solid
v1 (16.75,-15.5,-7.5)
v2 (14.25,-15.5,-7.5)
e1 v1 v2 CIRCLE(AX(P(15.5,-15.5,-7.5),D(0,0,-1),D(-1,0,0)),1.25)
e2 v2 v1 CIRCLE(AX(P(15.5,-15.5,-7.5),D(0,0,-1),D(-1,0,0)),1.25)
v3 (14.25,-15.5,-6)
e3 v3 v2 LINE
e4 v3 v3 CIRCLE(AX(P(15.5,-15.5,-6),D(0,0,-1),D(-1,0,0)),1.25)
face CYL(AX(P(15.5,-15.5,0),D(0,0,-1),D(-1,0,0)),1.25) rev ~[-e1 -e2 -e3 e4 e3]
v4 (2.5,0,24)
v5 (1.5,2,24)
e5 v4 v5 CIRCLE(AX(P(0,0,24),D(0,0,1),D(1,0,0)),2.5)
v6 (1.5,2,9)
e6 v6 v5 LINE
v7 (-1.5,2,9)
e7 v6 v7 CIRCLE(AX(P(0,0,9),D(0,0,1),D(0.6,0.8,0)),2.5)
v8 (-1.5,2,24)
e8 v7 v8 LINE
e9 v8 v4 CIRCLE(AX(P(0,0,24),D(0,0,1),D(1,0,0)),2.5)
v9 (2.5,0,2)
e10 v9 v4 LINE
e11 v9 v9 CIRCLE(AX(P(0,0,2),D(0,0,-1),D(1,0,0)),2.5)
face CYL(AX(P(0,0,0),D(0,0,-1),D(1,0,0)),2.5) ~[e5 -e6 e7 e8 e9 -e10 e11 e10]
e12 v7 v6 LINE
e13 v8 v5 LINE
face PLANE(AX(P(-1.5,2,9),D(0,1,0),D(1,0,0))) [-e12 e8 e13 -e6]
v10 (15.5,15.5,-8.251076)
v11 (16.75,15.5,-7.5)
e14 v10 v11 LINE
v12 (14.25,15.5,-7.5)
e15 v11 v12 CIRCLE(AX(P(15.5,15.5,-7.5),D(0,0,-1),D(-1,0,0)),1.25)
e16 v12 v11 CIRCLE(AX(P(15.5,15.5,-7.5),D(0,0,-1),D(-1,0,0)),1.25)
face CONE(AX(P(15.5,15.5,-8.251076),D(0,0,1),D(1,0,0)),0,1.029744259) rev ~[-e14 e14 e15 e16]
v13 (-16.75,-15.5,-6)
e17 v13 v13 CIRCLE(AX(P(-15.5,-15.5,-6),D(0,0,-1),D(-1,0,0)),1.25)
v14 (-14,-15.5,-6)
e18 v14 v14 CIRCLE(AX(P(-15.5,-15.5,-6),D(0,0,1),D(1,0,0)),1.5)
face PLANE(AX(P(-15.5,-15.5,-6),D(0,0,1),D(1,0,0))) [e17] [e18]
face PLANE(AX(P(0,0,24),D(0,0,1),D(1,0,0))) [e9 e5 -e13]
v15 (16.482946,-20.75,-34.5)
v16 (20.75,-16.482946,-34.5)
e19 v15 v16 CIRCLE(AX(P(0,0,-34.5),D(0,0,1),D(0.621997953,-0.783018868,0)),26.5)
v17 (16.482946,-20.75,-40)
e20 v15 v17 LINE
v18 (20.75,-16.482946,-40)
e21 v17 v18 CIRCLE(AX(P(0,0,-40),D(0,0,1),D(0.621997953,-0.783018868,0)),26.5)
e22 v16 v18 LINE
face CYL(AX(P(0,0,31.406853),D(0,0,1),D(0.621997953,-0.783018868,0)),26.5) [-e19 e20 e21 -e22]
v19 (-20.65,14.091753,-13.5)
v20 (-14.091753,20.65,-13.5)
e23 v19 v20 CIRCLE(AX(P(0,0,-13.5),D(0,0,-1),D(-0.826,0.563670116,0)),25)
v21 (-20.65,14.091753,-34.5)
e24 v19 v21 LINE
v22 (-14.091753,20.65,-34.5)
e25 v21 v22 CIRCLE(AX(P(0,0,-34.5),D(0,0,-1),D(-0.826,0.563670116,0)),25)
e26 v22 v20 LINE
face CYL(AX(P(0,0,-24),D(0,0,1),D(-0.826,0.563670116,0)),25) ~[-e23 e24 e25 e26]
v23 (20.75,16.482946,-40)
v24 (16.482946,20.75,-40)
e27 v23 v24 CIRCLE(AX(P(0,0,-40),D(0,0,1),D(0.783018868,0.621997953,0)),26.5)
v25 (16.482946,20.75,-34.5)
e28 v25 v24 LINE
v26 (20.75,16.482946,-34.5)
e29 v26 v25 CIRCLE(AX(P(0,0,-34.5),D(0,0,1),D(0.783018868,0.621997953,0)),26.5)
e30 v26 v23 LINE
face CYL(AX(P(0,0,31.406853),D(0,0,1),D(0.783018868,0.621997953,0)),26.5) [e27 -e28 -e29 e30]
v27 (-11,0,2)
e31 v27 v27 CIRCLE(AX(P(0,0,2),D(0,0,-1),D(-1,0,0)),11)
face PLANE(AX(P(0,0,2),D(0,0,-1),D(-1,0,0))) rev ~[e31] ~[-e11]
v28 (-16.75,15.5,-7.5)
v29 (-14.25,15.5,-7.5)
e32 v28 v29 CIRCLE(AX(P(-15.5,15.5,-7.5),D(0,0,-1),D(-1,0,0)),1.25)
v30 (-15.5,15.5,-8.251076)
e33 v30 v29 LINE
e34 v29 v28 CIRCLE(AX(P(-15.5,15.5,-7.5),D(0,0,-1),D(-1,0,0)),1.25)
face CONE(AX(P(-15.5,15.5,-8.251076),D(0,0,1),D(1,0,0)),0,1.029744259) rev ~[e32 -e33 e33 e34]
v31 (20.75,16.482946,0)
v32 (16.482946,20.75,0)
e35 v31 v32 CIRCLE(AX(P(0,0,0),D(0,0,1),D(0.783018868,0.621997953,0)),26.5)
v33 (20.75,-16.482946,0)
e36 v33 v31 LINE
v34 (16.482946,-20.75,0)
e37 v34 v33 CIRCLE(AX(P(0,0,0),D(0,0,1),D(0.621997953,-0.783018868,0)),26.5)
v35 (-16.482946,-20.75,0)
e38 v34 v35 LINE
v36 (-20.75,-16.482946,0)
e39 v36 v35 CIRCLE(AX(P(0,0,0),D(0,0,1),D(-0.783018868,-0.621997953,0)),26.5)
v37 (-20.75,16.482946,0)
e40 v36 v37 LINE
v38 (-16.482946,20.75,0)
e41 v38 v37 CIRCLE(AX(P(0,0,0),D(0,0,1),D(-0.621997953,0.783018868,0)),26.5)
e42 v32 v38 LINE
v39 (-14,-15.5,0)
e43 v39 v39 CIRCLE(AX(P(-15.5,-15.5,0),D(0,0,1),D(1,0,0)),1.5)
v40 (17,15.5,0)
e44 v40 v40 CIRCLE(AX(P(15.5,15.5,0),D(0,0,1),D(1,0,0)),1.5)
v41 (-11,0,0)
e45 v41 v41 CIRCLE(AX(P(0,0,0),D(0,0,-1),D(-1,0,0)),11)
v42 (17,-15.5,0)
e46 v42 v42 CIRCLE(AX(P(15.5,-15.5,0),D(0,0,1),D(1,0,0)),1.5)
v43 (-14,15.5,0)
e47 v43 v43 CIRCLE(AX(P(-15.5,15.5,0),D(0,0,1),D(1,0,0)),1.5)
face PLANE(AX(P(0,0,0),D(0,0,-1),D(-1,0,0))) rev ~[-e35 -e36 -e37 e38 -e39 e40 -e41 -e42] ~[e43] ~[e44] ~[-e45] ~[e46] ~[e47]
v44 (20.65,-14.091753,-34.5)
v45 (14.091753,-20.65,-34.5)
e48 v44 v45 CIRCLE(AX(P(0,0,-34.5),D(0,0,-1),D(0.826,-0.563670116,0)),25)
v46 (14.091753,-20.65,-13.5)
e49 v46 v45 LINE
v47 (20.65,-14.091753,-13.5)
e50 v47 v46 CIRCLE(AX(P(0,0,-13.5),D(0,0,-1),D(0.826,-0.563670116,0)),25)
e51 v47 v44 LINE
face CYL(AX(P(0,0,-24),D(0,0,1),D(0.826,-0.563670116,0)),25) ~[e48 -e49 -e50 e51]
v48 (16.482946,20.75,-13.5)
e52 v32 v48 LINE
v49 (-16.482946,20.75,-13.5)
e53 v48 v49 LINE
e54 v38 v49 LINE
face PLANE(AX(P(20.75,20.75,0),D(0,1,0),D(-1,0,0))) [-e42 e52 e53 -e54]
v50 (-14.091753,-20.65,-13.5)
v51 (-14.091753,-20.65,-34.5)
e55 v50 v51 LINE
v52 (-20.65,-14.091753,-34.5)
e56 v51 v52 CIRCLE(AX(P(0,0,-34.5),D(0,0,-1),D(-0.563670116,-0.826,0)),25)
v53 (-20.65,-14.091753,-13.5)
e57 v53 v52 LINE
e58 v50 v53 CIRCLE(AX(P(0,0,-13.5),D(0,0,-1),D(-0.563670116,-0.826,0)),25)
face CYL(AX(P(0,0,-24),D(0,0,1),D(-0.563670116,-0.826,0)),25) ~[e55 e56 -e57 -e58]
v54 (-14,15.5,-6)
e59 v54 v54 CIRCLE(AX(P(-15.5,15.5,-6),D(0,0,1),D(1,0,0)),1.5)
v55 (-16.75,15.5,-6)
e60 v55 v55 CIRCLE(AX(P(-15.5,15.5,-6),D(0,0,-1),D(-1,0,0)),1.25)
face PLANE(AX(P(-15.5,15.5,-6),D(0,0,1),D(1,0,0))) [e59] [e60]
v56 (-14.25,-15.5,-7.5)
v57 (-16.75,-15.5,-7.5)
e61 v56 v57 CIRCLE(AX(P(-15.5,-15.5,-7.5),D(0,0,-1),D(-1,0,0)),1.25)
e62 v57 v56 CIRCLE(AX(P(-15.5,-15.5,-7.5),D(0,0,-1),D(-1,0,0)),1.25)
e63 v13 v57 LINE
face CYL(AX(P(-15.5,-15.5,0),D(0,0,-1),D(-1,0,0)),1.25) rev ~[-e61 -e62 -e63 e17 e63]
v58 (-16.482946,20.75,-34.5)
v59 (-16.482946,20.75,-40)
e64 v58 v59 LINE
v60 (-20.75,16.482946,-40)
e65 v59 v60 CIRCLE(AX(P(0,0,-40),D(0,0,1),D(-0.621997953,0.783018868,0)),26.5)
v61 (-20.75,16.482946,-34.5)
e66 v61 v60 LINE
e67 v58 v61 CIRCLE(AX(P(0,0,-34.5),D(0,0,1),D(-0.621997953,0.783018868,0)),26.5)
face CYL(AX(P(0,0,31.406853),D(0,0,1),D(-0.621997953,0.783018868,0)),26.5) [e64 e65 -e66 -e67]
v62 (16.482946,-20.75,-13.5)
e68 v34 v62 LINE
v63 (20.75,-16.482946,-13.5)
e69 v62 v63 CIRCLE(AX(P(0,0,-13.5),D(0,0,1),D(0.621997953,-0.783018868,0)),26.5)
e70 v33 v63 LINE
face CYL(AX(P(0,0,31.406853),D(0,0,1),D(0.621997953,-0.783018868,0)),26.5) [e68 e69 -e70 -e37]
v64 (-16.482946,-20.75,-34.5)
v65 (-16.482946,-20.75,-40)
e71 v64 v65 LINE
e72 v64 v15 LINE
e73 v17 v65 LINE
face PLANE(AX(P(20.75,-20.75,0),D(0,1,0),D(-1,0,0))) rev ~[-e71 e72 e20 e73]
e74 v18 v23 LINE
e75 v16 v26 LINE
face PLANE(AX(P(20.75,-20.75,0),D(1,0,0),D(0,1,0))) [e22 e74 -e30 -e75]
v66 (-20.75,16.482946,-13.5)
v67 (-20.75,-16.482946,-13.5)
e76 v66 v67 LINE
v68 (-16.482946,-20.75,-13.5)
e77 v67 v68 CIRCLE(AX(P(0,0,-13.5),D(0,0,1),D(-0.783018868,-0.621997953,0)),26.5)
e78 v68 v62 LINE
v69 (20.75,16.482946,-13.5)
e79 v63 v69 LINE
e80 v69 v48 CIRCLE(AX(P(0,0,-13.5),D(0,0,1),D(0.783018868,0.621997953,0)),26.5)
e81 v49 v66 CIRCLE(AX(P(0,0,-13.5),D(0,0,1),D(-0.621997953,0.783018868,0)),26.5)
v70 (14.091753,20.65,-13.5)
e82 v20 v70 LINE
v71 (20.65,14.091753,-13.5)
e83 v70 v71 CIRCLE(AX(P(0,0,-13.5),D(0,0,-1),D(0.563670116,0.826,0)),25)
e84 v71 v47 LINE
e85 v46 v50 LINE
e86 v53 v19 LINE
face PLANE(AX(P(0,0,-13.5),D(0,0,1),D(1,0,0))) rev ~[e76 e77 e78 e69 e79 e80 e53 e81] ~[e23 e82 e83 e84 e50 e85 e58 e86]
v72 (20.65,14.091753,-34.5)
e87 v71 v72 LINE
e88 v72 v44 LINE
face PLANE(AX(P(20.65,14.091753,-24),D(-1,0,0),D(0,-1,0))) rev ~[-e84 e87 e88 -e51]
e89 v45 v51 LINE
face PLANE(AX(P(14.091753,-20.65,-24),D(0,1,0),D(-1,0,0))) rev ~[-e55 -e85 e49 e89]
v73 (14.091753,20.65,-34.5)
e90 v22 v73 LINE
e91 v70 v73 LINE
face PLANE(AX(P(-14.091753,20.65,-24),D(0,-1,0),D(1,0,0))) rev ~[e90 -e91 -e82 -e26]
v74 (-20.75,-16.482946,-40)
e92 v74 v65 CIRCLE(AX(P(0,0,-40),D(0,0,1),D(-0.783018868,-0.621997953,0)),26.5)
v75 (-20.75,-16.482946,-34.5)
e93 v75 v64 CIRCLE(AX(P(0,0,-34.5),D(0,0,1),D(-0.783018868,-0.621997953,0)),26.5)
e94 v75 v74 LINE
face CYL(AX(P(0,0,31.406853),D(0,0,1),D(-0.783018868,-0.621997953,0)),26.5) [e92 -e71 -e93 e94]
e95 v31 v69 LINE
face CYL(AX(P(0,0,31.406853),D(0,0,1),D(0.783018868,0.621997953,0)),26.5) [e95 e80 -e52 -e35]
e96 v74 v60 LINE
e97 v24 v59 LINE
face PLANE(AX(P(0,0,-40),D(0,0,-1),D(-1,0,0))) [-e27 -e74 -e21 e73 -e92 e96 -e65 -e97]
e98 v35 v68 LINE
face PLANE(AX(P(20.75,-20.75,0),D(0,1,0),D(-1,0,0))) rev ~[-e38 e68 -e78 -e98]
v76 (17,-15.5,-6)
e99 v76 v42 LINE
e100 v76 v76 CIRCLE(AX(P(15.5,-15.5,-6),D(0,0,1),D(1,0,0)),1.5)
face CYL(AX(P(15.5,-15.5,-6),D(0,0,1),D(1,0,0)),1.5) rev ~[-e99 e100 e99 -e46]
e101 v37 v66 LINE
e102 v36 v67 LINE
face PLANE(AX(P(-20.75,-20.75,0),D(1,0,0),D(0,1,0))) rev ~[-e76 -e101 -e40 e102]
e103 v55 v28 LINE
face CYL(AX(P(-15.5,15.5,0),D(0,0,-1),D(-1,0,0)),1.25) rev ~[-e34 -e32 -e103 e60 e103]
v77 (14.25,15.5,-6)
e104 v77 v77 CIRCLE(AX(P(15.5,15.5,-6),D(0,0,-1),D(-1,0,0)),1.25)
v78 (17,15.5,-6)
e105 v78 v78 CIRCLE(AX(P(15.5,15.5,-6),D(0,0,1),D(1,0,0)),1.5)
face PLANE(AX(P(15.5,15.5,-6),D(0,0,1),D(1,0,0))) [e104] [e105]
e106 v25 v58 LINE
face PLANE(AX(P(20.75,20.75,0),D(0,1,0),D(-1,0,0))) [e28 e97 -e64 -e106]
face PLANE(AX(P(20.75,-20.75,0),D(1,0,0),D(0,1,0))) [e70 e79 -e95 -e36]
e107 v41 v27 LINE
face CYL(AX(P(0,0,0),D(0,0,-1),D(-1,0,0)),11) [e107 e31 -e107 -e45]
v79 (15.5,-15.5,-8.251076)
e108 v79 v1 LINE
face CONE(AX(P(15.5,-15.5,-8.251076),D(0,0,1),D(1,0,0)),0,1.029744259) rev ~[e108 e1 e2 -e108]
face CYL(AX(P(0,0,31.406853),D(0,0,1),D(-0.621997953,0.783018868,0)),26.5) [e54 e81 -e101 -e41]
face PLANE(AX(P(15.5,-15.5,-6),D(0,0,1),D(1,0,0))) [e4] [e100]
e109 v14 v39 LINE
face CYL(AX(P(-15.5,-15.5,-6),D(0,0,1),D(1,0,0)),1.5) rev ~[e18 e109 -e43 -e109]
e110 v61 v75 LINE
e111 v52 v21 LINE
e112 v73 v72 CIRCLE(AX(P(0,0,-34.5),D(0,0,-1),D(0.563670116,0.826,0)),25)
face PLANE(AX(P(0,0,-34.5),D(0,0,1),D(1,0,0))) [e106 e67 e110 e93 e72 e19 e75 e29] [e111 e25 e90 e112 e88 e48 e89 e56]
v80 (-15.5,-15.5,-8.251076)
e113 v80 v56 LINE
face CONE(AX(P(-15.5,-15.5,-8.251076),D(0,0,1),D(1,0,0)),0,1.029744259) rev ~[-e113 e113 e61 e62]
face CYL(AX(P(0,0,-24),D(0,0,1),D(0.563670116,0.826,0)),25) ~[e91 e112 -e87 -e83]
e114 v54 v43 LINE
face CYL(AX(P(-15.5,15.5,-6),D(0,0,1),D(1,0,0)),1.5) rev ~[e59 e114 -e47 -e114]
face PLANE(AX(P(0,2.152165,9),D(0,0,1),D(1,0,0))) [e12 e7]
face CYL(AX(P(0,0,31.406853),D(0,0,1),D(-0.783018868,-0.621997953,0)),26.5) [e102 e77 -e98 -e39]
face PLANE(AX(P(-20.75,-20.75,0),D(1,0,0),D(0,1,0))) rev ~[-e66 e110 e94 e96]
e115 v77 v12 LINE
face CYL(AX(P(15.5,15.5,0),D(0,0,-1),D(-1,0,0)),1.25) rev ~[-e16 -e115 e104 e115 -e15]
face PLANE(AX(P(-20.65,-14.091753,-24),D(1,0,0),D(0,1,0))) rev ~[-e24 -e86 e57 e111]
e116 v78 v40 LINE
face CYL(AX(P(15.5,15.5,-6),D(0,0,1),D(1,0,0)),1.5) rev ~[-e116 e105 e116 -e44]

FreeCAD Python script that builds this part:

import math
import FreeCAD as App
import Part
import Sketcher

V = App.Vector


def add_polygon(sketch, points):
    """Adds a closed chain of lines whose ends are joined by coincident constraints."""
    first, n = sketch.GeometryCount, len(points)
    for a, b in zip(points, points[1:] + points[:1]):
        sketch.addGeometry(Part.LineSegment(App.Vector(*a, 0), App.Vector(*b, 0)), False)
    for i in range(n):
        sketch.addConstraint(Sketcher.Constraint("Coincident", first + i, 2, first + (i + 1) % n, 1))

doc = App.newDocument("Part")
body = doc.addObject("PartDesign::Body", "Body")

# Sketch on XY plane
sketch1 = body.newObject("Sketcher::SketchObject", "Sketch")
sketch1.AttachmentSupport = (doc.getObject("XY_Plane"), [""])
sketch1.MapMode = "FlatFace"
sketch1.addGeometry(Part.Circle(V(0, 0, 0), V(0, 0, 1), 2.5), False)
sketch1.addConstraint([
    Sketcher.Constraint("Coincident", 0, 3, -1, 1),
    Sketcher.Constraint("Diameter", 0, 5.0),
])
pad1 = body.newObject("PartDesign::Pad", "Pad")
pad1.Profile = sketch1
pad1.Length = 24

# Sketch on XY plane
sketch2 = body.newObject("Sketcher::SketchObject", "Sketch001")
sketch2.AttachmentSupport = (doc.getObject("XY_Plane"), [""])
sketch2.MapMode = "FlatFace"
sketch2.addGeometry(Part.Circle(V(0, 0, 0), V(0, 0, 1), 11), False)
sketch2.addConstraint([
    Sketcher.Constraint("Coincident", 0, 3, -1, 1),
    Sketcher.Constraint("Diameter", 0, 22.0),
])
pad2 = body.newObject("PartDesign::Pad", "Pad001")
pad2.Profile = sketch2
pad2.Length = 2

# Sketch on XY plane
sketch3 = body.newObject("Sketcher::SketchObject", "Sketch002")
sketch3.AttachmentSupport = (doc.getObject("XY_Plane"), [""])
sketch3.MapMode = "FlatFace"
add_polygon(sketch3, [(20.75, 20.75), (20.75, -20.75), (-20.75, -20.75), (-20.75, 20.75)])  # lines 0-3
sketch3.addConstraint([
    Sketcher.Constraint("Vertical", 0),
    Sketcher.Constraint("Horizontal", 1),
    Sketcher.Constraint("Vertical", 2),
    Sketcher.Constraint("Horizontal", 3),
    Sketcher.Constraint("Symmetric", 0, 2, 2, 2, -1, 1),
    Sketcher.Constraint("Equal", 3, 0),
    Sketcher.Constraint("DistanceX", 1, 2, 1, 1, 41.5),
])
pad3 = body.newObject("PartDesign::Pad", "Pad002")
pad3.Profile = sketch3
pad3.Length = 40
pad3.Reversed = True

# Sketch on XY plane
sketch4 = body.newObject("Sketcher::SketchObject", "Sketch003")
sketch4.AttachmentSupport = (doc.getObject("XY_Plane"), [""])
sketch4.MapMode = "FlatFace"
sketch4.AttachmentOffset = App.Placement(V(0, 0, -40), App.Rotation())
sketch4.addGeometry([
    Part.LineSegment(V(20.75, -16.482946, 0), V(20.75, -20.75, 0)),  # 0
    Part.LineSegment(V(20.75, -20.75, 0), V(16.482946, -20.75, 0)),  # 1
    Part.ArcOfCircle(Part.Circle(V(0, 0, 0), V(0, 0, 1), 26.5), math.radians(-51.537817), math.radians(-38.462183)),  # 2
    Part.LineSegment(V(-16.482946, -20.75, 0), V(-20.75, -20.75, 0)),  # 3
    Part.LineSegment(V(-20.75, -20.75, 0), V(-20.75, -16.482946, 0)),  # 4
    Part.ArcOfCircle(Part.Circle(V(0, 0, 0), V(0, 0, 1), 26.5), math.radians(-141.537817), math.radians(-128.462183)),  # 5
    Part.LineSegment(V(-20.75, 16.482946, 0), V(-20.75, 20.75, 0)),  # 6
    Part.LineSegment(V(-20.75, 20.75, 0), V(-16.482946, 20.75, 0)),  # 7
    Part.ArcOfCircle(Part.Circle(V(0, 0, 0), V(0, 0, 1), 26.5), math.radians(128.462183), math.radians(141.537817)),  # 8
    Part.LineSegment(V(16.482946, 20.75, 0), V(20.75, 20.75, 0)),  # 9
    Part.LineSegment(V(20.75, 20.75, 0), V(20.75, 16.482946, 0)),  # 10
    Part.ArcOfCircle(Part.Circle(V(0, 0, 0), V(0, 0, 1), 26.5), math.radians(38.462183), math.radians(51.537817)),  # 11
], False)
sketch4.addConstraint([
    Sketcher.Constraint("Coincident", 0, 2, 1, 1),
    Sketcher.Constraint("Coincident", 1, 2, 2, 1),
    Sketcher.Constraint("Coincident", 2, 2, 0, 1),
    Sketcher.Constraint("Coincident", 3, 2, 4, 1),
    Sketcher.Constraint("Coincident", 4, 2, 5, 1),
    Sketcher.Constraint("Coincident", 5, 2, 3, 1),
    Sketcher.Constraint("Coincident", 6, 2, 7, 1),
    Sketcher.Constraint("Coincident", 7, 2, 8, 1),
    Sketcher.Constraint("Coincident", 8, 2, 6, 1),
    Sketcher.Constraint("Coincident", 9, 2, 10, 1),
    Sketcher.Constraint("Coincident", 10, 2, 11, 1),
    Sketcher.Constraint("Coincident", 11, 2, 9, 1),
    Sketcher.Constraint("Vertical", 0),
    Sketcher.Constraint("Horizontal", 1),
    Sketcher.Constraint("Horizontal", 3),
    Sketcher.Constraint("Vertical", 4),
    Sketcher.Constraint("Vertical", 6),
    Sketcher.Constraint("Horizontal", 7),
    Sketcher.Constraint("Horizontal", 9),
    Sketcher.Constraint("Vertical", 10),
    Sketcher.Constraint("Coincident", 2, 3, -1, 1),
    Sketcher.Constraint("Coincident", 5, 3, -1, 1),
    Sketcher.Constraint("Coincident", 8, 3, -1, 1),
    Sketcher.Constraint("Coincident", 11, 3, -1, 1),
    Sketcher.Constraint("Equal", 2, 5),
    Sketcher.Constraint("Equal", 5, 8),
    Sketcher.Constraint("Equal", 8, 11),
    Sketcher.Constraint("Symmetric", 0, 2, 6, 2, -1, 1),
    Sketcher.Constraint("Symmetric", 3, 2, 9, 2, -1, 1),
    Sketcher.Constraint("Symmetric", 0, 2, 3, 2, -2),
    Sketcher.Constraint("Equal", 9, 0),
    Sketcher.Constraint("Radius", 2, 26.5),
    Sketcher.Constraint("DistanceX", -1, 1, 0, 2, 20.75),
])
pocket1 = body.newObject("PartDesign::Pocket", "Pocket")
pocket1.Profile = sketch4
pocket1.Type = "ThroughAll"
pocket1.Midplane = True

# Sketch on XY plane
sketch5 = body.newObject("Sketcher::SketchObject", "Sketch004")
sketch5.AttachmentSupport = (doc.getObject("XY_Plane"), [""])
sketch5.MapMode = "FlatFace"
sketch5.addGeometry([
    Part.Circle(V(-15.5, 15.5, 0), V(0, 0, 1), 1.25),
    Part.Circle(V(-15.5, -15.5, 0), V(0, 0, 1), 1.25),
    Part.Circle(V(15.5, -15.5, 0), V(0, 0, 1), 1.25),
    Part.Circle(V(15.5, 15.5, 0), V(0, 0, 1), 1.25),
], False)
sketch5.addConstraint([
    Sketcher.Constraint("Equal", 0, 1),
    Sketcher.Constraint("Equal", 1, 2),
    Sketcher.Constraint("Equal", 2, 3),
    Sketcher.Constraint("Symmetric", 0, 3, 2, 3, -1, 1),
    Sketcher.Constraint("Symmetric", 1, 3, 3, 3, -1, 1),
    Sketcher.Constraint("Symmetric", 1, 3, 2, 3, -2),
    Sketcher.Constraint("Diameter", 0, 2.5),
    Sketcher.Constraint("DistanceY", 1, 3, 0, 3, 31.0),
    Sketcher.Constraint("DistanceX", 1, 3, 2, 3, 31.0),
])
doc.recompute()
hole = body.newObject("PartDesign::Hole", "Hole")
hole.Profile = sketch5
hole.ThreadType = "None"
hole.Diameter = 2.5
hole.DepthType = "Dimension"
hole.Depth = 7.5
hole.DrillPoint = "Angled"
hole.DrillPointAngle = 118
hole.HoleCutType = "Counterbore"
hole.HoleCutDiameter = 3
hole.HoleCutDepth = 6

# Sketch on XY plane
sketch6 = body.newObject("Sketcher::SketchObject", "Sketch005")
sketch6.AttachmentSupport = (doc.getObject("XY_Plane"), [""])
sketch6.MapMode = "FlatFace"
sketch6.AttachmentOffset = App.Placement(V(0, 0, 9), App.Rotation())
sketch6.addGeometry([
    Part.LineSegment(V(-1.5, 2, 0), V(1.5, 2, 0)),
    Part.ArcOfCircle(Part.Circle(V(0, 0, 0), V(0, 0, 1), 2.5), math.radians(53.130102), math.radians(126.869898)),
], False)
sketch6.addConstraint([
    Sketcher.Constraint("Coincident", 0, 1, 1, 2),
    Sketcher.Constraint("Coincident", 1, 1, 0, 2),
    Sketcher.Constraint("Horizontal", 0),
    Sketcher.Constraint("Coincident", 1, 3, -1, 1),
    Sketcher.Constraint("Radius", 1, 2.5),
    Sketcher.Constraint("DistanceX", 0, 1, 0, 2, 3.0),
])
pocket2 = body.newObject("PartDesign::Pocket", "Pocket001")
pocket2.Profile = sketch6
pocket2.Length = 15
pocket2.Reversed = True

# Sketch on XY plane
sketch7 = body.newObject("Sketcher::SketchObject", "Sketch006")
sketch7.AttachmentSupport = (doc.getObject("XY_Plane"), [""])
sketch7.MapMode = "FlatFace"
sketch7.AttachmentOffset = App.Placement(V(0, 0, -24), App.Rotation())
sketch7.addGeometry([
    Part.LineSegment(V(16.482946, 20.75, 0), V(-16.482946, 20.75, 0)),  # 0
    Part.ArcOfCircle(Part.Circle(V(0, 0, 0), V(0, 0, 1), 26.5), math.radians(128.462183), math.radians(141.537817)),  # 1
    Part.LineSegment(V(-20.75, 16.482946, 0), V(-20.75, -16.482946, 0)),  # 2
    Part.ArcOfCircle(Part.Circle(V(0, 0, 0), V(0, 0, 1), 26.5), math.radians(-141.537817), math.radians(-128.462183)),  # 3
    Part.LineSegment(V(-16.482946, -20.75, 0), V(16.482946, -20.75, 0)),  # 4
    Part.ArcOfCircle(Part.Circle(V(0, 0, 0), V(0, 0, 1), 26.5), math.radians(-51.537817), math.radians(-38.462183)),  # 5
    Part.LineSegment(V(20.75, -16.482946, 0), V(20.75, 16.482946, 0)),  # 6
    Part.ArcOfCircle(Part.Circle(V(0, 0, 0), V(0, 0, 1), 26.5), math.radians(38.462183), math.radians(51.537817)),  # 7
    Part.ArcOfCircle(Part.Circle(V(0, 0, 0), V(0, 0, 1), 25), math.radians(124.309993), math.radians(145.690007)),  # 8
    Part.LineSegment(V(-14.091753, 20.65, 0), V(14.091753, 20.65, 0)),  # 9
    Part.ArcOfCircle(Part.Circle(V(0, 0, 0), V(0, 0, 1), 25), math.radians(34.309993), math.radians(55.690007)),  # 10
    Part.LineSegment(V(20.65, 14.091753, 0), V(20.65, -14.091753, 0)),  # 11
    Part.ArcOfCircle(Part.Circle(V(0, 0, 0), V(0, 0, 1), 25), math.radians(-55.690007), math.radians(-34.309993)),  # 12
    Part.LineSegment(V(14.091753, -20.65, 0), V(-14.091753, -20.65, 0)),  # 13
    Part.ArcOfCircle(Part.Circle(V(0, 0, 0), V(0, 0, 1), 25), math.radians(-145.690007), math.radians(-124.309993)),  # 14
    Part.LineSegment(V(-20.65, -14.091753, 0), V(-20.65, 14.091753, 0)),  # 15
], False)
sketch7.addConstraint([
    Sketcher.Constraint("Coincident", 0, 2, 1, 1),
    Sketcher.Constraint("Coincident", 1, 2, 2, 1),
    Sketcher.Constraint("Coincident", 2, 2, 3, 1),
    Sketcher.Constraint("Coincident", 3, 2, 4, 1),
    Sketcher.Constraint("Coincident", 4, 2, 5, 1),
    Sketcher.Constraint("Coincident", 5, 2, 6, 1),
    Sketcher.Constraint("Coincident", 6, 2, 7, 1),
    Sketcher.Constraint("Coincident", 7, 2, 0, 1),
    Sketcher.Constraint("Coincident", 8, 1, 9, 1),
    Sketcher.Constraint("Coincident", 9, 2, 10, 2),
    Sketcher.Constraint("Coincident", 10, 1, 11, 1),
    Sketcher.Constraint("Coincident", 11, 2, 12, 2),
    Sketcher.Constraint("Coincident", 12, 1, 13, 1),
    Sketcher.Constraint("Coincident", 13, 2, 14, 2),
    Sketcher.Constraint("Coincident", 14, 1, 15, 1),
    Sketcher.Constraint("Coincident", 15, 2, 8, 2),
    Sketcher.Constraint("Horizontal", 0),
    Sketcher.Constraint("Vertical", 2),
    Sketcher.Constraint("Horizontal", 4),
    Sketcher.Constraint("Vertical", 6),
    Sketcher.Constraint("Horizontal", 9),
    Sketcher.Constraint("Vertical", 11),
    Sketcher.Constraint("Horizontal", 13),
    Sketcher.Constraint("Vertical", 15),
    Sketcher.Constraint("Coincident", 1, 3, -1, 1),
    Sketcher.Constraint("Coincident", 3, 3, -1, 1),
    Sketcher.Constraint("Coincident", 5, 3, -1, 1),
    Sketcher.Constraint("Coincident", 7, 3, -1, 1),
    Sketcher.Constraint("Coincident", 8, 3, -1, 1),
    Sketcher.Constraint("Coincident", 10, 3, -1, 1),
    Sketcher.Constraint("Coincident", 12, 3, -1, 1),
    Sketcher.Constraint("Coincident", 14, 3, -1, 1),
    Sketcher.Constraint("Equal", 1, 3),
    Sketcher.Constraint("Equal", 3, 5),
    Sketcher.Constraint("Equal", 5, 7),
    Sketcher.Constraint("Equal", 8, 10),
    Sketcher.Constraint("Equal", 10, 12),
    Sketcher.Constraint("Equal", 12, 14),
    Sketcher.Constraint("Horizontal", 2, 2, 5, 2),
    Sketcher.Constraint("Horizontal", 11, 2, 14, 1),
    Sketcher.Constraint("Vertical", 0, 2, 3, 2),
    Sketcher.Constraint("Vertical", 9, 2, 12, 1),
    Sketcher.Constraint("Equal", 4, 2),
    Sketcher.Constraint("Equal", 13, 11),
    Sketcher.Constraint("Radius", 8, 25.0),
    Sketcher.Constraint("Radius", 1, 26.5),
    Sketcher.Constraint("DistanceY", 8, 1, 0, 2, 0.1),
    Sketcher.Constraint("DistanceY", -1, 1, 0, 2, 20.75),
])
pocket3 = body.newObject("PartDesign::Pocket", "Pocket002")
pocket3.Profile = sketch7
pocket3.Length = 21
pocket3.Midplane = True

doc.recompute()
